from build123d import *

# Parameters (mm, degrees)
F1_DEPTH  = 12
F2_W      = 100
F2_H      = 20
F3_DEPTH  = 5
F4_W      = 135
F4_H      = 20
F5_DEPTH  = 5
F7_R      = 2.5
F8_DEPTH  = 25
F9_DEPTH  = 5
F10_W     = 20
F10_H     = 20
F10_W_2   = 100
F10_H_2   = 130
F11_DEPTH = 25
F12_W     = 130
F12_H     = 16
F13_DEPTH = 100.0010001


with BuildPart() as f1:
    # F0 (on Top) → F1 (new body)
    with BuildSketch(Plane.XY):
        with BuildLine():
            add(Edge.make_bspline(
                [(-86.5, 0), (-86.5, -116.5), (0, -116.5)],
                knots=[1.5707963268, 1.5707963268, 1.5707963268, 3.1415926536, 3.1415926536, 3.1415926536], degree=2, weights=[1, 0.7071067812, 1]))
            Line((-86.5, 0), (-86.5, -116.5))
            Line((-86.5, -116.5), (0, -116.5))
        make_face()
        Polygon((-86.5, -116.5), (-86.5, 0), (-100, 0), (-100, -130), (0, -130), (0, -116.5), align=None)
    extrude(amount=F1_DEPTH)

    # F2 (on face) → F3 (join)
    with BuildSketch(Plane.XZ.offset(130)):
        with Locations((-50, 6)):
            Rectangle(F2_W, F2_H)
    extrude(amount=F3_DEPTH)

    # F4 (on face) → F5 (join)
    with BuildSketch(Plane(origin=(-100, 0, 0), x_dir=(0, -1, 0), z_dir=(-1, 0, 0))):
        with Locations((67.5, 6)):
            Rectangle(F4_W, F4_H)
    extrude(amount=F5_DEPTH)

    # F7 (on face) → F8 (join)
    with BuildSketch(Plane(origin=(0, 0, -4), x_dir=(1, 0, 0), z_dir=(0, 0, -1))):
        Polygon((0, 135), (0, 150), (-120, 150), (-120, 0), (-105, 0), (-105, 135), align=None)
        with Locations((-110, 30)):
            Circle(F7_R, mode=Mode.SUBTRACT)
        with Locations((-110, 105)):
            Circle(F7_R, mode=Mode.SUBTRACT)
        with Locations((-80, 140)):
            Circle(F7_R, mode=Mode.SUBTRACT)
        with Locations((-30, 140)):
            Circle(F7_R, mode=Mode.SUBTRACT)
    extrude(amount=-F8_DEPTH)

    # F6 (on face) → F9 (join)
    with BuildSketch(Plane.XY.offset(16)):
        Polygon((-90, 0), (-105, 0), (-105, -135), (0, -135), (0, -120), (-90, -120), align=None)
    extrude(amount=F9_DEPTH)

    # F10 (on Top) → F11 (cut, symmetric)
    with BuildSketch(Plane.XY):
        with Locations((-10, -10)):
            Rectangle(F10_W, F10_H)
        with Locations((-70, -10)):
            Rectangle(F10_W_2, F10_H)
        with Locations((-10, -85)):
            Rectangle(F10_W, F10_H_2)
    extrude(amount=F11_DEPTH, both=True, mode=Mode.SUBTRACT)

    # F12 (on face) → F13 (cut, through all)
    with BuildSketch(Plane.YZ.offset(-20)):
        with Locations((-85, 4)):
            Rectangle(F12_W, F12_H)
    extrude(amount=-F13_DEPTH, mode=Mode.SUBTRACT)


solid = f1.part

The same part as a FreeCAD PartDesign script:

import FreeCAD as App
import Part
import Sketcher

V = App.Vector

doc = App.newDocument("Part")
body = doc.addObject("PartDesign::Body", "Body")

# Sketch on XY plane
sketch1 = doc.addObject("Sketcher::SketchObject", "Sketch")
body.addObject(sketch1)
sketch1.AttachmentSupport = (doc.XY_Plane, [""])
sketch1.MapMode = "FlatFace"
sketch1.addGeometry([
    Part.BSplineCurve([V(-86.5, 0, 0), V(-86.5, -116.5, 0), V(0, -116.5, 0)], [3, 3], [1.570796327, 3.141592654], False, 2, [1, 0.707106781, 1], False),  # 0
    Part.LineSegment(V(-86.5, 0, 0), V(-100, 0, 0)),  # 1
    Part.LineSegment(V(-100, 0, 0), V(-100, -130, 0)),  # 2
    Part.LineSegment(V(-100, -130, 0), V(0, -130, 0)),  # 3
    Part.LineSegment(V(0, -130, 0), V(0, -116.5, 0)),  # 4
], False)
sketch1.addConstraint([
    Sketcher.Constraint("Block", 0),
    Sketcher.Constraint("Coincident", 0, 1, 1, 1),
    Sketcher.Constraint("Coincident", 1, 2, 2, 1),
    Sketcher.Constraint("Coincident", 2, 2, 3, 1),
    Sketcher.Constraint("Coincident", 3, 2, 4, 1),
    Sketcher.Constraint("Coincident", 4, 2, 0, 2),
    Sketcher.Constraint("Horizontal", 1),
    Sketcher.Constraint("Vertical", 2),
    Sketcher.Constraint("Horizontal", 3),
    Sketcher.Constraint("Vertical", 4),
    Sketcher.Constraint("Equal", 1, 4),
    Sketcher.Constraint("DistanceX", 3, 1, 3, 2, 100.0),
])
pad1 = doc.addObject("PartDesign::Pad", "Pad")
body.addObject(pad1)
pad1.Profile = sketch1
pad1.Length = 12

# Sketch on XZ plane
sketch2 = doc.addObject("Sketcher::SketchObject", "Sketch001")
body.addObject(sketch2)
sketch2.AttachmentSupport = (doc.XZ_Plane, [""])
sketch2.MapMode = "FlatFace"
sketch2.AttachmentOffset = App.Placement(V(0, 0, 130), App.Rotation())
sketch2.addGeometry([
    Part.LineSegment(V(-100, 16, 0), V(-100, -4, 0)),
    Part.LineSegment(V(-100, -4, 0), V(0, -4, 0)),
    Part.LineSegment(V(0, -4, 0), V(0, 16, 0)),
    Part.LineSegment(V(0, 16, 0), V(-100, 16, 0)),
], False)
sketch2.addConstraint([
    Sketcher.Constraint("Coincident", 0, 2, 1, 1),
    Sketcher.Constraint("Coincident", 1, 2, 2, 1),
    Sketcher.Constraint("Coincident", 2, 2, 3, 1),
    Sketcher.Constraint("Coincident", 3, 2, 0, 1),
    Sketcher.Constraint("Vertical", 0),
    Sketcher.Constraint("Horizontal", 1),
    Sketcher.Constraint("Vertical", 2),
    Sketcher.Constraint("Horizontal", 3),
    Sketcher.Constraint("PointOnObject", 1, 2, -2),
    Sketcher.Constraint("DistanceX", 1, 1, 1, 2, 100.0),
    Sketcher.Constraint("DistanceY", 0, 2, 0, 1, 20.0),
    Sketcher.Constraint("DistanceY", 0, 2, -1, 1, 4.0),
])
pad2 = doc.addObject("PartDesign::Pad", "Pad001")
body.addObject(pad2)
pad2.Profile = sketch2
pad2.Length = 5

# Sketch on YZ plane
sketch3 = doc.addObject("Sketcher::SketchObject", "Sketch002")
body.addObject(sketch3)
sketch3.AttachmentSupport = (doc.YZ_Plane, [""])
sketch3.MapMode = "FlatFace"
sketch3.AttachmentOffset = App.Placement(V(0, 0, -100), App.Rotation())
sketch3.addGeometry([
    Part.LineSegment(V(0, 16, 0), V(0, -4, 0)),
    Part.LineSegment(V(0, -4, 0), V(-135, -4, 0)),
    Part.LineSegment(V(-135, -4, 0), V(-135, 16, 0)),
    Part.LineSegment(V(-135, 16, 0), V(0, 16, 0)),
], False)
sketch3.addConstraint([
    Sketcher.Constraint("Coincident", 0, 2, 1, 1),
    Sketcher.Constraint("Coincident", 1, 2, 2, 1),
    Sketcher.Constraint("Coincident", 2, 2, 3, 1),
    Sketcher.Constraint("Coincident", 3, 2, 0, 1),
    Sketcher.Constraint("Vertical", 0),
    Sketcher.Constraint("Horizontal", 1),
    Sketcher.Constraint("Vertical", 2),
    Sketcher.Constraint("Horizontal", 3),
    Sketcher.Constraint("PointOnObject", 0, 2, -2),
    Sketcher.Constraint("DistanceX", 1, 2, 1, 1, 135.0),
    Sketcher.Constraint("DistanceY", 0, 2, 0, 1, 20.0),
    Sketcher.Constraint("DistanceY", 0, 2, -1, 1, 4.0),
])
pad3 = doc.addObject("PartDesign::Pad", "Pad002")
body.addObject(pad3)
pad3.Profile = sketch3
pad3.Length = 5
pad3.Reversed = True

# Sketch on XY plane
sketch4 = doc.addObject("Sketcher::SketchObject", "Sketch003")
body.addObject(sketch4)
sketch4.AttachmentSupport = (doc.XY_Plane, [""])
sketch4.MapMode = "FlatFace"
sketch4.AttachmentOffset = App.Placement(V(0, 0, -4), App.Rotation())
sketch4.addGeometry([
    Part.LineSegment(V(0, -135, 0), V(0, -150, 0)),  # 0
    Part.LineSegment(V(0, -150, 0), V(-120, -150, 0)),  # 1
    Part.LineSegment(V(-120, -150, 0), V(-120, 0, 0)),  # 2
    Part.LineSegment(V(-120, 0, 0), V(-105, 0, 0)),  # 3
    Part.LineSegment(V(-105, 0, 0), V(-105, -135, 0)),  # 4
    Part.LineSegment(V(-105, -135, 0), V(0, -135, 0)),  # 5
    Part.Circle(V(-110, -30, 0), V(0, 0, 1), 2.5),  # 6
    Part.Circle(V(-110, -105, 0), V(0, 0, 1), 2.5),  # 7
    Part.Circle(V(-80, -140, 0), V(0, 0, 1), 2.5),  # 8
    Part.Circle(V(-30, -140, 0), V(0, 0, 1), 2.5),  # 9
], False)
sketch4.addConstraint([
    Sketcher.Constraint("Coincident", 0, 2, 1, 1),
    Sketcher.Constraint("Coincident", 1, 2, 2, 1),
    Sketcher.Constraint("Coincident", 2, 2, 3, 1),
    Sketcher.Constraint("Coincident", 3, 2, 4, 1),
    Sketcher.Constraint("Coincident", 4, 2, 5, 1),
    Sketcher.Constraint("Coincident", 5, 2, 0, 1),
    Sketcher.Constraint("Vertical", 0),
    Sketcher.Constraint("Horizontal", 1),
    Sketcher.Constraint("Vertical", 2),
    Sketcher.Constraint("Horizontal", 3),
    Sketcher.Constraint("Vertical", 4),
    Sketcher.Constraint("Horizontal", 5),
    Sketcher.Constraint("Equal", 6, 7),
    Sketcher.Constraint("Equal", 7, 8),
    Sketcher.Constraint("Equal", 8, 9),
    Sketcher.Constraint("PointOnObject", 0, 2, -2),
    Sketcher.Constraint("PointOnObject", 2, 2, -1),
    Sketcher.Constraint("Horizontal", 8, 3, 9, 3),
    Sketcher.Constraint("Vertical", 6, 3, 7, 3),
    Sketcher.Constraint("Equal", 3, 0),
    Sketcher.Constraint("Diameter", 6, 5.0),
    Sketcher.Constraint("DistanceX", 1, 2, 1, 1, 120.0),
    Sketcher.Constraint("DistanceX", 3, 1, 3, 2, 15.0),
    Sketcher.Constraint("DistanceY", 2, 1, 2, 2, 150.0),
    Sketcher.Constraint("DistanceX", 6, 3, -1, 1, 110.0),
    Sketcher.Constraint("DistanceY", 6, 3, -1, 1, 30.0),
    Sketcher.Constraint("DistanceY", 7, 3, -1, 1, 105.0),
    Sketcher.Constraint("DistanceX", 8, 3, -1, 1, 80.0),
    Sketcher.Constraint("DistanceY", 8, 3, -1, 1, 140.0),
    Sketcher.Constraint("DistanceX", 9, 3, -1, 1, 30.0),
])
pad4 = doc.addObject("PartDesign::Pad", "Pad003")
body.addObject(pad4)
pad4.Profile = sketch4
pad4.Length = 25

# Sketch on XY plane
sketch5 = doc.addObject("Sketcher::SketchObject", "Sketch004")
body.addObject(sketch5)
sketch5.AttachmentSupport = (doc.XY_Plane, [""])
sketch5.MapMode = "FlatFace"
sketch5.AttachmentOffset = App.Placement(V(0, 0, 16), App.Rotation())
sketch5.addGeometry([
    Part.LineSegment(V(-90, 0, 0), V(-105, 0, 0)),  # 0
    Part.LineSegment(V(-105, 0, 0), V(-105, -135, 0)),  # 1
    Part.LineSegment(V(-105, -135, 0), V(0, -135, 0)),  # 2
    Part.LineSegment(V(0, -135, 0), V(0, -120, 0)),  # 3
    Part.LineSegment(V(0, -120, 0), V(-90, -120, 0)),  # 4
    Part.LineSegment(V(-90, -120, 0), V(-90, 0, 0)),  # 5
], False)
sketch5.addConstraint([
    Sketcher.Constraint("Coincident", 0, 2, 1, 1),
    Sketcher.Constraint("Coincident", 1, 2, 2, 1),
    Sketcher.Constraint("Coincident", 2, 2, 3, 1),
    Sketcher.Constraint("Coincident", 3, 2, 4, 1),
    Sketcher.Constraint("Coincident", 4, 2, 5, 1),
    Sketcher.Constraint("Coincident", 5, 2, 0, 1),
    Sketcher.Constraint("Horizontal", 0),
    Sketcher.Constraint("Vertical", 1),
    Sketcher.Constraint("Horizontal", 2),
    Sketcher.Constraint("Vertical", 3),
    Sketcher.Constraint("Horizontal", 4),
    Sketcher.Constraint("Vertical", 5),
    Sketcher.Constraint("PointOnObject", 0, 2, -1),
    Sketcher.Constraint("PointOnObject", 2, 2, -2),
    Sketcher.Constraint("Equal", 0, 3),
    Sketcher.Constraint("DistanceX", 0, 2, 0, 1, 15.0),
    Sketcher.Constraint("DistanceX", 2, 1, 2, 2, 105.0),
    Sketcher.Constraint("DistanceY", 1, 2, 1, 1, 135.0),
])
pad5 = doc.addObject("PartDesign::Pad", "Pad004")
body.addObject(pad5)
pad5.Profile = sketch5
pad5.Length = 5

# Sketch on XY plane
sketch6 = doc.addObject("Sketcher::SketchObject", "Sketch005")
body.addObject(sketch6)
sketch6.AttachmentSupport = (doc.XY_Plane, [""])
sketch6.MapMode = "FlatFace"
sketch6.addGeometry([
    Part.LineSegment(V(0, 0, 0), V(-120, 0, 0)),  # 0
    Part.LineSegment(V(-120, 0, 0), V(-120, -20, 0)),  # 1
    Part.LineSegment(V(-120, -20, 0), V(-20, -20, 0)),  # 2
    Part.LineSegment(V(-20, -20, 0), V(-20, -150, 0)),  # 3
    Part.LineSegment(V(-20, -150, 0), V(0, -150, 0)),  # 4
    Part.LineSegment(V(0, -150, 0), V(0, 0, 0)),  # 5
], False)
sketch6.addConstraint([
    Sketcher.Constraint("Coincident", 0, 2, 1, 1),
    Sketcher.Constraint("Coincident", 1, 2, 2, 1),
    Sketcher.Constraint("Coincident", 2, 2, 3, 1),
    Sketcher.Constraint("Coincident", 3, 2, 4, 1),
    Sketcher.Constraint("Coincident", 4, 2, 5, 1),
    Sketcher.Constraint("Coincident", 5, 2, 0, 1),
    Sketcher.Constraint("Horizontal", 0),
    Sketcher.Constraint("Vertical", 1),
    Sketcher.Constraint("Horizontal", 2),
    Sketcher.Constraint("Vertical", 3),
    Sketcher.Constraint("Horizontal", 4),
    Sketcher.Constraint("Vertical", 5),
    Sketcher.Constraint("Coincident", 5, 2, -1, 1),
    Sketcher.Constraint("Equal", 4, 1),
    Sketcher.Constraint("DistanceX", 0, 2, 0, 1, 120.0),
    Sketcher.Constraint("DistanceX", 2, 1, 2, 2, 100.0),
    Sketcher.Constraint("DistanceY", 3, 2, 3, 1, 130.0),
])
pocket1 = doc.addObject("PartDesign::Pocket", "Pocket")
body.addObject(pocket1)
pocket1.Profile = sketch6
pocket1.Length = 50
pocket1.Midplane = True

# Sketch on YZ plane
sketch7 = doc.addObject("Sketcher::SketchObject", "Sketch006")
body.addObject(sketch7)
sketch7.AttachmentSupport = (doc.YZ_Plane, [""])
sketch7.MapMode = "FlatFace"
sketch7.AttachmentOffset = App.Placement(V(0, 0, -20), App.Rotation())
sketch7.addGeometry([
    Part.LineSegment(V(-150, 12, 0), V(-150, -4, 0)),
    Part.LineSegment(V(-150, -4, 0), V(-20, -4, 0)),
    Part.LineSegment(V(-20, -4, 0), V(-20, 12, 0)),
    Part.LineSegment(V(-20, 12, 0), V(-150, 12, 0)),
], False)
sketch7.addConstraint([
    Sketcher.Constraint("Coincident", 0, 2, 1, 1),
    Sketcher.Constraint("Coincident", 1, 2, 2, 1),
    Sketcher.Constraint("Coincident", 2, 2, 3, 1),
    Sketcher.Constraint("Coincident", 3, 2, 0, 1),
    Sketcher.Constraint("Vertical", 0),
    Sketcher.Constraint("Horizontal", 1),
    Sketcher.Constraint("Vertical", 2),
    Sketcher.Constraint("Horizontal", 3),
    Sketcher.Constraint("DistanceX", 1, 1, 1, 2, 130.0),
    Sketcher.Constraint("DistanceY", 0, 2, 0, 1, 16.0),
    Sketcher.Constraint("DistanceX", 0, 2, -1, 1, 150.0),
    Sketcher.Constraint("DistanceY", 0, 2, -1, 1, 4.0),
])
pocket2 = doc.addObject("PartDesign::Pocket", "Pocket001")
body.addObject(pocket2)
pocket2.Profile = sketch7
pocket2.Type = "ThroughAll"

doc.recompute()
